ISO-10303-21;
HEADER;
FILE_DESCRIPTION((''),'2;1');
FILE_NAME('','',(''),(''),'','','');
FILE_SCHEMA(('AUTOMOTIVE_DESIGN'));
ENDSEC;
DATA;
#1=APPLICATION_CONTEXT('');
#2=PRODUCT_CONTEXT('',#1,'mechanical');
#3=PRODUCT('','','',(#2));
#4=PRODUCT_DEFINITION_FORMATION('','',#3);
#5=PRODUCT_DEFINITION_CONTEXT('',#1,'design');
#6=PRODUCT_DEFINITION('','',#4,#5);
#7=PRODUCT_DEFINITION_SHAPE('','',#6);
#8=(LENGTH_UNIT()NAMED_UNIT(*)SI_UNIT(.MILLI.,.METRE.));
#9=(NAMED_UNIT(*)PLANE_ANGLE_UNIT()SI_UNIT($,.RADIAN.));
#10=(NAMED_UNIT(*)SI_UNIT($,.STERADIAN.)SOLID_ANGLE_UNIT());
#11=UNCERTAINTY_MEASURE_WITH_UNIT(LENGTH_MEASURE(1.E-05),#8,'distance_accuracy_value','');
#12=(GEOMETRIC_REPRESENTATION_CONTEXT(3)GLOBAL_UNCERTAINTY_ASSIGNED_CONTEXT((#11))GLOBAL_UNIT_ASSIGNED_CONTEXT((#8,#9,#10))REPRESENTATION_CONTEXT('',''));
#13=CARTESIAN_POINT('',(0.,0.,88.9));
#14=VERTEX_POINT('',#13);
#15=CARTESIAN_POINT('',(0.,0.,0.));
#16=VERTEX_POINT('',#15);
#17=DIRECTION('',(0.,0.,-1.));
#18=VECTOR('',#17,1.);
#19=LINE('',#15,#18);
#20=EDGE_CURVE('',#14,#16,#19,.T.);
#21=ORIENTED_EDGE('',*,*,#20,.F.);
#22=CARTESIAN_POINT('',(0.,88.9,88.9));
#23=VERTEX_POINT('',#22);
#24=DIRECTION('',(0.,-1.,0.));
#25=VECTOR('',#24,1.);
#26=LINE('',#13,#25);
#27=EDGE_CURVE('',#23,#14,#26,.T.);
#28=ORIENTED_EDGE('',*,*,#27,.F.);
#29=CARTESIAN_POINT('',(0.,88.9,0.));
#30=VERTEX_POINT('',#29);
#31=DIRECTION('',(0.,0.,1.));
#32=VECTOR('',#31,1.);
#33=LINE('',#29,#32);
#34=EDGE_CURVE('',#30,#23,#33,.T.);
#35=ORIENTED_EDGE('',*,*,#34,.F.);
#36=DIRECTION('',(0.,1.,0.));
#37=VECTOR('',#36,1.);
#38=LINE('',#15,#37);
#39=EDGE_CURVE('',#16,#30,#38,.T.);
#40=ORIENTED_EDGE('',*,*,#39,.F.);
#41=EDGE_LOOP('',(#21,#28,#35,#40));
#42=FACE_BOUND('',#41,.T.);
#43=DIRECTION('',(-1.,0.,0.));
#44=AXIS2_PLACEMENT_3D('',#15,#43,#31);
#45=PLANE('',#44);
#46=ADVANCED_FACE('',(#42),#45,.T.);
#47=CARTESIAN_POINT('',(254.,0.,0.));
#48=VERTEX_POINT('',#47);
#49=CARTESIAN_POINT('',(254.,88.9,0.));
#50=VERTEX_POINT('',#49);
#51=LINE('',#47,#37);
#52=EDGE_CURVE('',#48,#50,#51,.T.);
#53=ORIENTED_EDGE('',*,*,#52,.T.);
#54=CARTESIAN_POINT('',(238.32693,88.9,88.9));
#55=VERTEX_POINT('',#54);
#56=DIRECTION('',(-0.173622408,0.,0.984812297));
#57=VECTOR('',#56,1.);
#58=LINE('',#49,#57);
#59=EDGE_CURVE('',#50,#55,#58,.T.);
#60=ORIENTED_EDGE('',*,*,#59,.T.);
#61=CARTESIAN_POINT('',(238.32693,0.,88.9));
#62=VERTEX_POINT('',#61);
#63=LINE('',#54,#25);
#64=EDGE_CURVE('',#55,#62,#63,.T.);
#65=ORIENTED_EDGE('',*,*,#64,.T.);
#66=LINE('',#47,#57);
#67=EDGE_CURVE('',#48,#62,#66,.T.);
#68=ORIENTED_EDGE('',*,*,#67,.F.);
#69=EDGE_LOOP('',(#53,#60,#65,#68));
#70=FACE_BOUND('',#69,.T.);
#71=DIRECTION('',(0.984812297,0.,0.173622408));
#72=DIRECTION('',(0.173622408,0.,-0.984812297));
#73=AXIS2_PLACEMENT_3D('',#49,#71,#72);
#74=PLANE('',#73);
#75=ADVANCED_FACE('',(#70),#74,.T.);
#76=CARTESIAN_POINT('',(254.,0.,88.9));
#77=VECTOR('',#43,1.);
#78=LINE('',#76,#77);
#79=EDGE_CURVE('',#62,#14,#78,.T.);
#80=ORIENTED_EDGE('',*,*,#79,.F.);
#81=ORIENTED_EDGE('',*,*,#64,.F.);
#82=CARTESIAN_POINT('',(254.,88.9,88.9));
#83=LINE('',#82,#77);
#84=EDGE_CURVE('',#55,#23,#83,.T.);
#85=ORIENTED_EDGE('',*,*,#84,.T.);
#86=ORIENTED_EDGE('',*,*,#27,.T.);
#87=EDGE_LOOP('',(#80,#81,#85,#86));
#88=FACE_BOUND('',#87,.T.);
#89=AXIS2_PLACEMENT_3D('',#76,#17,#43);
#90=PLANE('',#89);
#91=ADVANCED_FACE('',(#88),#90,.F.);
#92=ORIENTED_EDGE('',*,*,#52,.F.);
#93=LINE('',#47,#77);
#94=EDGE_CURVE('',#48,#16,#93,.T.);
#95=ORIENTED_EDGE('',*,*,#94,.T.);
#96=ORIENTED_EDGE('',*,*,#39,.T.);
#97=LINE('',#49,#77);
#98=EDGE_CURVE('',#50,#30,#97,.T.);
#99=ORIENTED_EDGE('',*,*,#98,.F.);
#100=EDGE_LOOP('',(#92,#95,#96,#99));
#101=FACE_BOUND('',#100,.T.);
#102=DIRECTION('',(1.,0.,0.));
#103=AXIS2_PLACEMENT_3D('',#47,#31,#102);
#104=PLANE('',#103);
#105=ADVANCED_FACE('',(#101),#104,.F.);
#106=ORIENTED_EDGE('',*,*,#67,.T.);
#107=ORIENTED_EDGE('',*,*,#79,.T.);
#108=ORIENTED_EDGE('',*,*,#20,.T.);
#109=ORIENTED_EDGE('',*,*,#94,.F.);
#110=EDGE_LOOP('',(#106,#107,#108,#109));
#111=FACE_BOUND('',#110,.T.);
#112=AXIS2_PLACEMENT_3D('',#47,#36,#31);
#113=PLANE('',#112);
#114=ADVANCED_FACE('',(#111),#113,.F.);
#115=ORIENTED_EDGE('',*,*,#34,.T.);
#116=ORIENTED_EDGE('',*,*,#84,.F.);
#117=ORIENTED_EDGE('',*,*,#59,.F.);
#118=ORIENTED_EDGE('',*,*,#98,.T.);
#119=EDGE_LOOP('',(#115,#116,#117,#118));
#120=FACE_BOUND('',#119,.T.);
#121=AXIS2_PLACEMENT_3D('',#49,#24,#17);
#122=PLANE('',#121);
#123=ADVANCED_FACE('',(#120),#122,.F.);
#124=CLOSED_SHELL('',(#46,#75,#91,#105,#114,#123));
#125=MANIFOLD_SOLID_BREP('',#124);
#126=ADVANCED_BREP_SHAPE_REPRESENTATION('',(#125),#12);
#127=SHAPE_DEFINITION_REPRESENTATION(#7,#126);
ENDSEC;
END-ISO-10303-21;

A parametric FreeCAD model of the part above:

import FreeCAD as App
import Part
import Sketcher

V = App.Vector
Q = App.Units.Quantity

doc = App.newDocument("Part")
body = doc.addObject("PartDesign::Body", "Body")

sketch1 = body.newObject("Sketcher::SketchObject", "Sketch")
sketch1.AttachmentSupport = (doc.getObject("YZ_Plane"), [""])
sketch1.MapMode = "FlatFace"
sketch1.addGeometry([
    Part.LineSegment(V(0, 89, 0), V(0, 0, 0)),
    Part.LineSegment(V(0, 0, 0), V(89, 0, 0)),
    Part.LineSegment(V(89, 0, 0), V(89, 89, 0)),
    Part.LineSegment(V(89, 89, 0), V(0, 89, 0)),
], False)
sketch1.addConstraint([
    Sketcher.Constraint("Coincident", 0, 2, 1, 1),
    Sketcher.Constraint("Coincident", 1, 2, 2, 1),
    Sketcher.Constraint("Coincident", 2, 2, 3, 1),
    Sketcher.Constraint("Coincident", 3, 2, 0, 1),
    Sketcher.Constraint("Vertical", 0),
    Sketcher.Constraint("Horizontal", 1),
    Sketcher.Constraint("Vertical", 2),
    Sketcher.Constraint("Horizontal", 3),
    Sketcher.Constraint("Coincident", 0, 2, -1, 1),
    Sketcher.Constraint("Equal", 3, 0),
    Sketcher.Constraint("DistanceX", 1, 1, 1, 2, Q("3.5 in")),
])
pad1 = body.newObject("PartDesign::Pad", "Pad")
pad1.Profile = sketch1
pad1.Length = Q("10 in")

sketch2 = body.newObject("Sketcher::SketchObject", "Sketch001")
sketch2.AttachmentSupport = (doc.getObject("XZ_Plane"), [""])
sketch2.MapMode = "FlatFace"
sketch2.addGeometry([
    Part.LineSegment(V(254, 0, 0), V(238, 89, 0)),
    Part.LineSegment(V(238, 89, 0), V(254, 89, 0)),
    Part.LineSegment(V(254, 89, 0), V(254, 0, 0)),
], False)
sketch2.addConstraint([
    Sketcher.Constraint("Coincident", 0, 2, 1, 1),
    Sketcher.Constraint("Coincident", 1, 2, 2, 1),
    Sketcher.Constraint("Coincident", 2, 2, 0, 1),
    Sketcher.Constraint("Horizontal", 1),
    Sketcher.Constraint("Vertical", 2),
    Sketcher.Constraint("PointOnObject", 2, 2, -1),
    Sketcher.Constraint("DistanceY", 2, 2, 2, 1, Q("3.5 in")),
    Sketcher.Constraint("DistanceX", -1, 1, 1, 2, Q("10 in")),
    Sketcher.Constraint("DistanceX", 1, 1, 1, 2, Q("15.67307 mm")),
])
pocket1 = body.newObject("PartDesign::Pocket", "Pocket")
pocket1.Profile = sketch2
pocket1.Length = Q("3.5 in")

doc.recompute()
